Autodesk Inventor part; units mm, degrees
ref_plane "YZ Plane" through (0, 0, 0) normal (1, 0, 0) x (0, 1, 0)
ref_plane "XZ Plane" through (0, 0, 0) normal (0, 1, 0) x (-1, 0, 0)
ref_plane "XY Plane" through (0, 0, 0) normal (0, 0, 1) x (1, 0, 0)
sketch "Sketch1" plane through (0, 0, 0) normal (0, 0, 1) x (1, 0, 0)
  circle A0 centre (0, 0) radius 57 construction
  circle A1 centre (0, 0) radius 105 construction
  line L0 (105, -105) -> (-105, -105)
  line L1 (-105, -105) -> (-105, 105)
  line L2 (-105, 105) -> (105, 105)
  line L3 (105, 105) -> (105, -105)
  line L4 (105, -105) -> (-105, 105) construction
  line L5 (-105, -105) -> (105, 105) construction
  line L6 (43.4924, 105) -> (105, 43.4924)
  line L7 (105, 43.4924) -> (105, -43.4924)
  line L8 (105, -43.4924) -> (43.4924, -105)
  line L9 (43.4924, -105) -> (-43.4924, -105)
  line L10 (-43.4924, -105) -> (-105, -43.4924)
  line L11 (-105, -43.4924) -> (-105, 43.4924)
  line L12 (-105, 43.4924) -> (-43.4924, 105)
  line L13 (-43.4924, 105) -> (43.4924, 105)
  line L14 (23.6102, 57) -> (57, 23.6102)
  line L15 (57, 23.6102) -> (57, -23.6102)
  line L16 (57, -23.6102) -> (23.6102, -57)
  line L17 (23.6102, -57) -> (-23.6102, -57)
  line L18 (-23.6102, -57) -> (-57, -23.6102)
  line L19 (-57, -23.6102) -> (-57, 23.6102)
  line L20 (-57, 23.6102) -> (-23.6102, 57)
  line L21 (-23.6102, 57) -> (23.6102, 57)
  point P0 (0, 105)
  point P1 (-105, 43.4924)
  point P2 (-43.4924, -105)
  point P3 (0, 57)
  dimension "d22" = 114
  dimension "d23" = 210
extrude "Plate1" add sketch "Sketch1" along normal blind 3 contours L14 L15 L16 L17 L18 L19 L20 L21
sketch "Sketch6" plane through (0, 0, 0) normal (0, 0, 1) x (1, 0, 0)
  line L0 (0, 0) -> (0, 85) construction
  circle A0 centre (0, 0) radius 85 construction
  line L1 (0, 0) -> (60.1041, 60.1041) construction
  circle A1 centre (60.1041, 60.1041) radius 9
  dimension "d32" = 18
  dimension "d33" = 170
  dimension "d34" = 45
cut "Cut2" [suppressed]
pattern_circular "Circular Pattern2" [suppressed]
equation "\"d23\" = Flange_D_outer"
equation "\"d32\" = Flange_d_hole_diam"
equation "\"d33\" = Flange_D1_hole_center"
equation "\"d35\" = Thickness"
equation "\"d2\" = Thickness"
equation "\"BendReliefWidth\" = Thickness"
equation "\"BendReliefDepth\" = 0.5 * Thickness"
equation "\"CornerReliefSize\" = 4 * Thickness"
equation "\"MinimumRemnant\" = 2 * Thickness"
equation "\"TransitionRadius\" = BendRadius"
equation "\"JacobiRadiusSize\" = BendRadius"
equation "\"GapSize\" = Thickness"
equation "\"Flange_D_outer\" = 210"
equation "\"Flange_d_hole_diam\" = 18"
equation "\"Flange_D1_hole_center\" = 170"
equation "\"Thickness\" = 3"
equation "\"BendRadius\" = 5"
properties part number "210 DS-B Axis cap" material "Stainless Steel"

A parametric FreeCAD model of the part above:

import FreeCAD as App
import Part
import Sketcher


def add_polygon(sketch, points):
    """Adds a closed chain of lines whose ends are joined by coincident constraints."""
    first, n = sketch.GeometryCount, len(points)
    for a, b in zip(points, points[1:] + points[:1]):
        sketch.addGeometry(Part.LineSegment(App.Vector(*a, 0), App.Vector(*b, 0)), False)
    for i in range(n):
        sketch.addConstraint(Sketcher.Constraint("Coincident", first + i, 2, first + (i + 1) % n, 1))

doc = App.newDocument("Part")
params = doc.addObject("Spreadsheet::Sheet", "Params")
for row, (alias, value) in enumerate([
    ("pad1_length", "3 mm"),
], start=1):
    params.set(f"A{row}", alias)
    params.set(f"B{row}", "=" + value)
    params.setAlias(f"B{row}", alias)

body = doc.addObject("PartDesign::Body", "Body")

# Sketch on XY plane
sketch1 = doc.addObject("Sketcher::SketchObject", "Sketch")
body.addObject(sketch1)
sketch1.AttachmentSupport = (doc.XY_Plane, [""])
sketch1.MapMode = "FlatFace"
add_polygon(sketch1, [(57, 23.6102), (23.6102, 57), (-23.6102, 57), (-57, 23.6102), (-57, -23.6102), (-23.6102, -57), (23.6102, -57), (57, -23.6102)])  # lines 0-7
sketch1.addConstraint(Sketcher.Constraint("Horizontal", 1))
sketch1.addConstraint(Sketcher.Constraint("Vertical", 3))
sketch1.addConstraint(Sketcher.Constraint("Horizontal", 5))
sketch1.addConstraint(Sketcher.Constraint("Vertical", 7))
sketch1.addConstraint(Sketcher.Constraint("Symmetric", 0, 2, 4, 2, -1, 1))
sketch1.addConstraint(Sketcher.Constraint("Symmetric", 2, 2, 6, 2, -1, 1))
sketch1.addConstraint(Sketcher.Constraint("Perpendicular", 0, 2))
sketch1.addConstraint(Sketcher.Constraint("Perpendicular", 2, 4))
sketch1.addConstraint(Sketcher.Constraint("Perpendicular", 4, 6))
sketch1.addConstraint(Sketcher.Constraint("Horizontal", 3, 2, 6, 2))
sketch1.addConstraint(Sketcher.Constraint("Vertical", 1, 2, 4, 2))
sketch1.addConstraint(Sketcher.Constraint("Equal", 5, 3))
sketch1.addConstraint(Sketcher.Constraint("DistanceY", 4, 2, 1, 2, 114.0))
sketch1.addConstraint(Sketcher.Constraint("DistanceX", 1, 2, 1, 1, 47.2204))
pad1 = doc.addObject("PartDesign::Pad", "Pad")
body.addObject(pad1)
pad1.Profile = sketch1
pad1.setExpression("Length", "Params.pad1_length")

doc.recompute()
